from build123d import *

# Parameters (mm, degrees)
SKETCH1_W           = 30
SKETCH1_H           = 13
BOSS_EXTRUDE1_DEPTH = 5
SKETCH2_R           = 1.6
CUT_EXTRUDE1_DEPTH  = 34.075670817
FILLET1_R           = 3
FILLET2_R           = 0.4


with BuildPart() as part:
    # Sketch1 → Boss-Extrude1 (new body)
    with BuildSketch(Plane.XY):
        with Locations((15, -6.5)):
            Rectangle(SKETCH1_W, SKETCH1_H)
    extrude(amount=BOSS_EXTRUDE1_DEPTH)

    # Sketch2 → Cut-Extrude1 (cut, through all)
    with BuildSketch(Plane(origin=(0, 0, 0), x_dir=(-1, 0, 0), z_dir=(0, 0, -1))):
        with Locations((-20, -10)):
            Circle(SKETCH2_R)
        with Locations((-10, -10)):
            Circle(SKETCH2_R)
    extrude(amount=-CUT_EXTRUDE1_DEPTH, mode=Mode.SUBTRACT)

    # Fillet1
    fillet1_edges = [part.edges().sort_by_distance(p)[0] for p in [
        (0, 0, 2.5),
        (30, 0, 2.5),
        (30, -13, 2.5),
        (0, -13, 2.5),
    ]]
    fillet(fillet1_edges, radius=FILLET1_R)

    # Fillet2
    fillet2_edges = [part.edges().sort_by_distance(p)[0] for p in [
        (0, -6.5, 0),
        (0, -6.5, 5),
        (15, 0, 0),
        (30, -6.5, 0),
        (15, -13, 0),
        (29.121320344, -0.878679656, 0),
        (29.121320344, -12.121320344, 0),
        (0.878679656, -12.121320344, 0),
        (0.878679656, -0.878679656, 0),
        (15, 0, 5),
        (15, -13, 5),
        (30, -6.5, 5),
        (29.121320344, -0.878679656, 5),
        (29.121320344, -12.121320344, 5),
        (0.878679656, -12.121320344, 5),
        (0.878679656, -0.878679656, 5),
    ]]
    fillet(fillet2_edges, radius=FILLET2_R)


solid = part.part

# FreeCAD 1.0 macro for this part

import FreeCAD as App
import Part
import Sketcher


def edges_at(feature, points):
    """Names of the edges that pass closest to the given points."""
    edges = feature.Shape.Edges
    near = lambda p: min(range(len(edges)), key=lambda i: edges[i].distToShape(Part.Vertex(*p))[0])
    return sorted({f"Edge{near(p) + 1}" for p in points})


def add_polygon(sketch, points):
    """Adds a closed chain of lines whose ends are joined by coincident constraints."""
    first, n = sketch.GeometryCount, len(points)
    for a, b in zip(points, points[1:] + points[:1]):
        sketch.addGeometry(Part.LineSegment(App.Vector(*a, 0), App.Vector(*b, 0)), False)
    for i in range(n):
        sketch.addConstraint(Sketcher.Constraint("Coincident", first + i, 2, first + (i + 1) % n, 1))

doc = App.newDocument("Part")
body = doc.addObject("PartDesign::Body", "Body")

sketch1 = doc.addObject("Sketcher::SketchObject", "Sketch")
body.addObject(sketch1)
sketch1.AttachmentSupport = (doc.XY_Plane, [""])
sketch1.MapMode = "FlatFace"
add_polygon(sketch1, [(0, 0), (0, -13), (30, -13), (30, 0)])
sketch1.addConstraint([
    Sketcher.Constraint("Vertical", 0),
    Sketcher.Constraint("Horizontal", 1),
    Sketcher.Constraint("Vertical", 2),
    Sketcher.Constraint("Horizontal", 3),
    Sketcher.Constraint("Coincident", 3, 2, -1, 1),
    Sketcher.Constraint("DistanceX", 1, 1, 1, 2, 30.0),
    Sketcher.Constraint("DistanceY", 0, 2, 0, 1, 13.0),
])
pad1 = doc.addObject("PartDesign::Pad", "Pad")
body.addObject(pad1)
pad1.Profile = sketch1
pad1.Length = 5

sketch2 = doc.addObject("Sketcher::SketchObject", "Sketch001")
body.addObject(sketch2)
sketch2.AttachmentSupport = (doc.XY_Plane, [""])
sketch2.MapMode = "FlatFace"
sketch2.addGeometry([
    Part.Circle(App.Vector(20, -10, 0), App.Vector(0, 0, 1), 1.6),
    Part.Circle(App.Vector(10, -10, 0), App.Vector(0, 0, 1), 1.6),
], False)
sketch2.addConstraint([
    Sketcher.Constraint("Equal", 0, 1),
    Sketcher.Constraint("Horizontal", 0, 3, 1, 3),
    Sketcher.Constraint("Diameter", 0, 3.2),
    Sketcher.Constraint("DistanceX", -1, 1, 0, 3, 20.0),
    Sketcher.Constraint("DistanceY", 0, 3, -1, 1, 10.0),
    Sketcher.Constraint("DistanceX", -1, 1, 1, 3, 10.0),
])
pocket1 = doc.addObject("PartDesign::Pocket", "Pocket")
body.addObject(pocket1)
pocket1.Profile = sketch2
pocket1.Type = "ThroughAll"
pocket1.Reversed = True
doc.recompute()

fillet = doc.addObject("PartDesign::Fillet", "Fillet")
body.addObject(fillet)
fillet.Base = (pocket1, edges_at(pocket1, [
    (0, 0, 2.5),
    (30, 0, 2.5),
    (30, -13, 2.5),
    (0, -13, 2.5),
]))
fillet.Radius = 3
doc.recompute()

fillet2 = doc.addObject("PartDesign::Fillet", "Fillet001")
body.addObject(fillet2)
fillet2.Base = (fillet, edges_at(fillet, [
    (0, -6.5, 0),
    (0, -6.5, 5),
    (15, 0, 0),
    (30, -6.5, 0),
    (15, -13, 0),
    (29.121, -0.879, 0),
    (29.121, -12.121, 0),
    (0.879, -12.121, 0),
    (0.879, -0.879, 0),
    (15, 0, 5),
    (15, -13, 5),
    (30, -6.5, 5),
    (29.121, -0.879, 5),
    (29.121, -12.121, 5),
    (0.879, -12.121, 5),
    (0.879, -0.879, 5),
]))
fillet2.Radius = 0.4

doc.recompute()
